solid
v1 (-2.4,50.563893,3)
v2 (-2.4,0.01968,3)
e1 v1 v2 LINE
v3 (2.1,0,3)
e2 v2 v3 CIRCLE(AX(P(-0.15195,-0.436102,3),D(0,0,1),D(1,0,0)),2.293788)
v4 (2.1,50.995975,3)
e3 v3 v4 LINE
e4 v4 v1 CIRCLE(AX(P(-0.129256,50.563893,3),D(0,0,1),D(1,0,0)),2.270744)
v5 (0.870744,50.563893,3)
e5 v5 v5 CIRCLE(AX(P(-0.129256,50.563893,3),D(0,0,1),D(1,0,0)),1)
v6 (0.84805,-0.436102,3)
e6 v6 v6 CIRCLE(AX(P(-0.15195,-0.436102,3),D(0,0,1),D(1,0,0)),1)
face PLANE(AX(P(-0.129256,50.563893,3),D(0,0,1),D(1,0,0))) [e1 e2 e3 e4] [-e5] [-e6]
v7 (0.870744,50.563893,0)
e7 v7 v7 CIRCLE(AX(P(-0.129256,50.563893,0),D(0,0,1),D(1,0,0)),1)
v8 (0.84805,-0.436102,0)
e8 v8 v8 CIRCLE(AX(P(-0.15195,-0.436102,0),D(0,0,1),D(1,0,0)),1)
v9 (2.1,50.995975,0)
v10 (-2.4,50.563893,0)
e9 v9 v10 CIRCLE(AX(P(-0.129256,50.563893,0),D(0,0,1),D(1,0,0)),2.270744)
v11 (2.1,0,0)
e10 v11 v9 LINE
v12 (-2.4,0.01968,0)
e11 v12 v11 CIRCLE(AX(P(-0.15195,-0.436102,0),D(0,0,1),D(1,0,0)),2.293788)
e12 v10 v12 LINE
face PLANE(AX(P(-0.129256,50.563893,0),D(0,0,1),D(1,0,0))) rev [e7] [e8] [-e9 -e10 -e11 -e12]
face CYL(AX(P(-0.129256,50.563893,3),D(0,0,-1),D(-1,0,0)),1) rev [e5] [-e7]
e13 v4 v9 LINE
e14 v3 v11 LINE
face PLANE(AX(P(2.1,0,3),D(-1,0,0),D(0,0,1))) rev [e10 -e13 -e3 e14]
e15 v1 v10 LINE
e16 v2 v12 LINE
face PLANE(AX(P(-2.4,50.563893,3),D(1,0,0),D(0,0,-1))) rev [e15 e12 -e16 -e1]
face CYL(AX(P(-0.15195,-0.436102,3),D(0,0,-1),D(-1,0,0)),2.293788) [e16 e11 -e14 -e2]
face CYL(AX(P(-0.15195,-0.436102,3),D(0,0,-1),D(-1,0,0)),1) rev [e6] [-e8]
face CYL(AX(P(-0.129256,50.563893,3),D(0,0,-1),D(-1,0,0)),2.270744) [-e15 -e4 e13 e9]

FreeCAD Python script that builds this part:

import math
import FreeCAD as App
import Part
import Sketcher

V = App.Vector

doc = App.newDocument("Part")
body = doc.addObject("PartDesign::Body", "Body")

sketch1 = body.newObject("Sketcher::SketchObject", "Sketch")
sketch1.AttachmentSupport = (doc.getObject("XY_Plane"), [""])
sketch1.MapMode = "FlatFace"
sketch1.addGeometry([
    Part.LineSegment(V(-2.4, 50.6, 0), V(-2.4, 0, 0)),
    Part.ArcOfCircle(Part.Circle(V(-0.2, -0.4, 0), V(0, 0, 1), 2.3), math.radians(169), math.radians(371)),
    Part.LineSegment(V(2.1, 0, 0), V(2.1, 51, 0)),
    Part.ArcOfCircle(Part.Circle(V(-0.1, 50.6, 0), V(0, 0, 1), 2.3), math.radians(11), math.radians(180)),
    Part.Circle(V(-0.2, -0.4, 0), V(0, 0, 1), 1),
    Part.Circle(V(-0.1, 50.6, 0), V(0, 0, 1), 1),
], False)
sketch1.addConstraint([
    Sketcher.Constraint("Coincident", 0, 2, 1, 1),
    Sketcher.Constraint("Coincident", 1, 2, 2, 1),
    Sketcher.Constraint("Coincident", 2, 2, 3, 1),
    Sketcher.Constraint("Tangent", 3, 2, 0, 1),
    Sketcher.Constraint("Vertical", 0),
    Sketcher.Constraint("Vertical", 2),
    Sketcher.Constraint("Coincident", 4, 3, 1, 3),
    Sketcher.Constraint("Coincident", 5, 3, 3, 3),
    Sketcher.Constraint("Equal", 4, 5),
    Sketcher.Constraint("PointOnObject", 1, 2, -1),
    Sketcher.Constraint("Diameter", 4, 2.0),
    Sketcher.Constraint("DistanceX", 0, 2, -1, 1, 2.4),
    Sketcher.Constraint("DistanceX", -1, 1, 1, 2, 2.1),
    Sketcher.Constraint("Radius", 1, 2.293788),
    Sketcher.Constraint("Radius", 3, 2.270744),
    Sketcher.Constraint("DistanceY", 1, 3, -1, 1, 0.436102),
    Sketcher.Constraint("DistanceY", 0, 2, 0, 1, 50.544213),
])
pad1 = body.newObject("PartDesign::Pad", "Pad")
pad1.Profile = sketch1
pad1.Length = 3

doc.recompute()
